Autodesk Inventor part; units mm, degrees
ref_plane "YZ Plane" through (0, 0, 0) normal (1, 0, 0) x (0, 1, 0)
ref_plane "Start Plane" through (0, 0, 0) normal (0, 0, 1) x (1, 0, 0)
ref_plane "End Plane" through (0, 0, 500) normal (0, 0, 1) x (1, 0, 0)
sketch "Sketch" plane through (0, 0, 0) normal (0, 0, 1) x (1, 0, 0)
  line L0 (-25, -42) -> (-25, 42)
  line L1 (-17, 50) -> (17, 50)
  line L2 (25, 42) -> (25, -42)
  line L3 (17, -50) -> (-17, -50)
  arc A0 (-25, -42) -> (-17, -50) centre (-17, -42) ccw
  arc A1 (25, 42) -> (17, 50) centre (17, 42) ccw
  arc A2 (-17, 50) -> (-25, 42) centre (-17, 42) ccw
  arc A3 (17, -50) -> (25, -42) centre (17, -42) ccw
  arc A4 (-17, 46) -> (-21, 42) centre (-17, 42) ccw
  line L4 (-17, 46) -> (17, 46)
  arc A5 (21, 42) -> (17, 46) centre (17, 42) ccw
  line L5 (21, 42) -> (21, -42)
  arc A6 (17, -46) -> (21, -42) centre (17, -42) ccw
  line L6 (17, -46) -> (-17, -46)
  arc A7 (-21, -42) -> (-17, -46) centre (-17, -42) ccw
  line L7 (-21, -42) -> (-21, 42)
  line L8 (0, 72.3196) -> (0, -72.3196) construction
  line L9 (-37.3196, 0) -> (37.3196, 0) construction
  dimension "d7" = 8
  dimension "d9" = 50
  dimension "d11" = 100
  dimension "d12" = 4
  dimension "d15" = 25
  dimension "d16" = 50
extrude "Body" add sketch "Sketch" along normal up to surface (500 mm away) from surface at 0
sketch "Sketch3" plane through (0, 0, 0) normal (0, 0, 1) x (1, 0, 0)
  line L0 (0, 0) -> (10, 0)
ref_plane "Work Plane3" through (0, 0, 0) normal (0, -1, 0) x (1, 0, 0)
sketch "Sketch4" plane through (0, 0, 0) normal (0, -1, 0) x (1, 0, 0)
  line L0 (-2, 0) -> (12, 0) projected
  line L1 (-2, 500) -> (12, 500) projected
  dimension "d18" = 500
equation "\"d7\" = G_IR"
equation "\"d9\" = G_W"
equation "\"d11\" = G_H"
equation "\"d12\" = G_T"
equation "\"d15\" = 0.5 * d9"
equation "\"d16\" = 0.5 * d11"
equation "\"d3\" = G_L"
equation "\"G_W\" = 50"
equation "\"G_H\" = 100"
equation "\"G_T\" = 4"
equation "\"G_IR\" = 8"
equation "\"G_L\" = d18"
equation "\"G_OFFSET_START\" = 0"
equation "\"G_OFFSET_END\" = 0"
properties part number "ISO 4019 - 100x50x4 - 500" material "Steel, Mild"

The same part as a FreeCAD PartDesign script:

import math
import FreeCAD as App
import Part
import Sketcher

doc = App.newDocument("Part")
body = doc.addObject("PartDesign::Body", "Body")

# Sketch on XY plane
sketch1 = body.newObject("Sketcher::SketchObject", "Sketch")
sketch1.AttachmentSupport = (doc.getObject("XY_Plane"), [""])
sketch1.MapMode = "FlatFace"
sketch1.addGeometry(Part.LineSegment(App.Vector(-25, 42, 0), App.Vector(-25, -42, 0)), False)
sketch1.addGeometry(Part.ArcOfCircle(Part.Circle(App.Vector(-17, -42, 0), App.Vector(0, 0, 1), 8), math.radians(180), math.radians(270)), False)
sketch1.addGeometry(Part.LineSegment(App.Vector(-17, -50, 0), App.Vector(17, -50, 0)), False)
sketch1.addGeometry(Part.ArcOfCircle(Part.Circle(App.Vector(17, -42, 0), App.Vector(0, 0, 1), 8), math.radians(-90), math.radians(0)), False)
sketch1.addGeometry(Part.LineSegment(App.Vector(25, -42, 0), App.Vector(25, 42, 0)), False)
sketch1.addGeometry(Part.ArcOfCircle(Part.Circle(App.Vector(17, 42, 0), App.Vector(0, 0, 1), 8), math.radians(0), math.radians(90)), False)
sketch1.addGeometry(Part.LineSegment(App.Vector(17, 50, 0), App.Vector(-17, 50, 0)), False)
sketch1.addGeometry(Part.ArcOfCircle(Part.Circle(App.Vector(-17, 42, 0), App.Vector(0, 0, 1), 8), math.radians(90), math.radians(180)), False)
sketch1.addGeometry(Part.ArcOfCircle(Part.Circle(App.Vector(-17, 42, 0), App.Vector(0, 0, 1), 4), math.radians(90), math.radians(180)), False)
sketch1.addGeometry(Part.LineSegment(App.Vector(-17, 46, 0), App.Vector(17, 46, 0)), False)
sketch1.addGeometry(Part.ArcOfCircle(Part.Circle(App.Vector(17, 42, 0), App.Vector(0, 0, 1), 4), math.radians(0), math.radians(90)), False)
sketch1.addGeometry(Part.LineSegment(App.Vector(21, 42, 0), App.Vector(21, -42, 0)), False)
sketch1.addGeometry(Part.ArcOfCircle(Part.Circle(App.Vector(17, -42, 0), App.Vector(0, 0, 1), 4), math.radians(-90), math.radians(0)), False)
sketch1.addGeometry(Part.LineSegment(App.Vector(17, -46, 0), App.Vector(-17, -46, 0)), False)
sketch1.addGeometry(Part.ArcOfCircle(Part.Circle(App.Vector(-17, -42, 0), App.Vector(0, 0, 1), 4), math.radians(180), math.radians(270)), False)
sketch1.addGeometry(Part.LineSegment(App.Vector(-21, -42, 0), App.Vector(-21, 42, 0)), False)
sketch1.addConstraint(Sketcher.Constraint("Tangent", 0, 2, 1, 1))
sketch1.addConstraint(Sketcher.Constraint("Tangent", 1, 2, 2, 1))
sketch1.addConstraint(Sketcher.Constraint("Tangent", 2, 2, 3, 1))
sketch1.addConstraint(Sketcher.Constraint("Tangent", 3, 2, 4, 1))
sketch1.addConstraint(Sketcher.Constraint("Tangent", 4, 2, 5, 1))
sketch1.addConstraint(Sketcher.Constraint("Tangent", 5, 2, 6, 1))
sketch1.addConstraint(Sketcher.Constraint("Tangent", 6, 2, 7, 1))
sketch1.addConstraint(Sketcher.Constraint("Tangent", 7, 2, 0, 1))
sketch1.addConstraint(Sketcher.Constraint("Tangent", 8, 1, 9, 1))
sketch1.addConstraint(Sketcher.Constraint("Tangent", 9, 2, 10, 2))
sketch1.addConstraint(Sketcher.Constraint("Tangent", 10, 1, 11, 1))
sketch1.addConstraint(Sketcher.Constraint("Tangent", 11, 2, 12, 2))
sketch1.addConstraint(Sketcher.Constraint("Tangent", 12, 1, 13, 1))
sketch1.addConstraint(Sketcher.Constraint("Tangent", 13, 2, 14, 2))
sketch1.addConstraint(Sketcher.Constraint("Tangent", 14, 1, 15, 1))
sketch1.addConstraint(Sketcher.Constraint("Tangent", 15, 2, 8, 2))
sketch1.addConstraint(Sketcher.Constraint("Vertical", 0))
sketch1.addConstraint(Sketcher.Constraint("Horizontal", 2))
sketch1.addConstraint(Sketcher.Constraint("Vertical", 4))
sketch1.addConstraint(Sketcher.Constraint("Horizontal", 6))
sketch1.addConstraint(Sketcher.Constraint("Horizontal", 9))
sketch1.addConstraint(Sketcher.Constraint("Vertical", 11))
sketch1.addConstraint(Sketcher.Constraint("Horizontal", 13))
sketch1.addConstraint(Sketcher.Constraint("Vertical", 15))
sketch1.addConstraint(Sketcher.Constraint("Coincident", 8, 3, 7, 3))
sketch1.addConstraint(Sketcher.Constraint("Coincident", 10, 3, 5, 3))
sketch1.addConstraint(Sketcher.Constraint("Coincident", 12, 3, 3, 3))
sketch1.addConstraint(Sketcher.Constraint("Equal", 1, 3))
sketch1.addConstraint(Sketcher.Constraint("Equal", 3, 5))
sketch1.addConstraint(Sketcher.Constraint("Equal", 5, 7))
sketch1.addConstraint(Sketcher.Constraint("Equal", 12, 14))
sketch1.addConstraint(Sketcher.Constraint("Symmetric", 1, 3, 5, 3, -1, 1))
sketch1.addConstraint(Sketcher.Constraint("Radius", 1, 8.0))
sketch1.addConstraint(Sketcher.Constraint("Radius", 8, 4.0))
sketch1.addConstraint(Sketcher.Constraint("DistanceX", 0, 2, -1, 1, 25.0))
sketch1.addConstraint(Sketcher.Constraint("DistanceY", 1, 2, -1, 1, 50.0))
pad1 = body.newObject("PartDesign::Pad", "Pad")
pad1.Profile = sketch1
pad1.Length = 500

doc.recompute()
